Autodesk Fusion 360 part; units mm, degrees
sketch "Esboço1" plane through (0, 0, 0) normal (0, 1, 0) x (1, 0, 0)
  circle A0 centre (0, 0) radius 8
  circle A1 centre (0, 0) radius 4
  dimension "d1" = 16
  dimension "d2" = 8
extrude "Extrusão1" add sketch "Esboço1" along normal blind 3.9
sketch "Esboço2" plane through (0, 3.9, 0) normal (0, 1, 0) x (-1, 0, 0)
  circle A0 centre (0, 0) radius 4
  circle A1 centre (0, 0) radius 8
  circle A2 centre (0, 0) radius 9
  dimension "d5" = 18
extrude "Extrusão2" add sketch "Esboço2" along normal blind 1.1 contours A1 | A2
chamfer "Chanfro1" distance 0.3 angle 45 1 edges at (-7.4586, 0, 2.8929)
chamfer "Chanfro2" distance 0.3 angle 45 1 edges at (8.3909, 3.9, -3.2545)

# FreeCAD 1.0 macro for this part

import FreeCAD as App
import Part
import Sketcher
Q = App.Units.Quantity


def edges_at(feature, points):
    """Names of the edges that pass closest to the given points."""
    edges = feature.Shape.Edges
    near = lambda p: min(range(len(edges)), key=lambda i: edges[i].distToShape(Part.Vertex(*p))[0])
    return sorted({f"Edge{near(p) + 1}" for p in points})

doc = App.newDocument("Part")
params = doc.addObject("Spreadsheet::Sheet", "Params")
for row, (alias, value) in enumerate([
    ("sketch1_diameter", "16 mm"),
    ("sketch1_diameter2", "8 mm"),
    ("pad1_length", "3.9 mm"),
    ("sketch2_diameter", "18 mm"),
    ("sketch2_diameter2", "8 mm"),
    ("pad2_length", "1.1 mm"),
    ("chamfer_size", "0.3 mm"),
    ("chamfer2_size", "0.3 mm"),
], start=1):
    params.set(f"A{row}", alias)
    params.set(f"B{row}", "=" + value)
    params.setAlias(f"B{row}", alias)

body = doc.addObject("PartDesign::Body", "Body")

sketch1 = body.newObject("Sketcher::SketchObject", "Sketch")
sketch1.AttachmentSupport = (doc.getObject("XZ_Plane"), [""])
sketch1.MapMode = "FlatFace"
sketch1.addGeometry(Part.Circle(App.Vector(0, 0, 0), App.Vector(0, 0, 1), 8), False)
sketch1.addGeometry(Part.Circle(App.Vector(0, 0, 0), App.Vector(0, 0, 1), 4), False)
sketch1.addConstraint(Sketcher.Constraint("Coincident", 0, 3, -1, 1))
sketch1.addConstraint(Sketcher.Constraint("Coincident", 1, 3, -1, 1))
sketch1.addConstraint(Sketcher.Constraint("Diameter", 0, Q("16 mm")))
sketch1.addConstraint(Sketcher.Constraint("Diameter", 1, Q("8 mm")))
sketch1.setExpression("Constraints[2]", "Params.sketch1_diameter")
sketch1.setExpression("Constraints[3]", "Params.sketch1_diameter2")
pad1 = body.newObject("PartDesign::Pad", "Pad")
pad1.Profile = sketch1
pad1.setExpression("Length", "Params.pad1_length")
pad1.Reversed = True

sketch2 = body.newObject("Sketcher::SketchObject", "Sketch001")
sketch2.AttachmentSupport = (doc.getObject("XZ_Plane"), [""])
sketch2.MapMode = "FlatFace"
sketch2.AttachmentOffset = App.Placement(App.Vector(0, 0, -3.9), App.Rotation())
sketch2.addGeometry(Part.Circle(App.Vector(0, 0, 0), App.Vector(0, 0, 1), 9), False)
sketch2.addGeometry(Part.Circle(App.Vector(0, 0, 0), App.Vector(0, 0, 1), 4), False)
sketch2.addConstraint(Sketcher.Constraint("Coincident", 0, 3, -1, 1))
sketch2.addConstraint(Sketcher.Constraint("Coincident", 1, 3, -1, 1))
sketch2.addConstraint(Sketcher.Constraint("Diameter", 0, Q("18 mm")))
sketch2.addConstraint(Sketcher.Constraint("Diameter", 1, Q("8 mm")))
sketch2.setExpression("Constraints[2]", "Params.sketch2_diameter")
sketch2.setExpression("Constraints[3]", "Params.sketch2_diameter2")
pad2 = body.newObject("PartDesign::Pad", "Pad001")
pad2.Profile = sketch2
pad2.setExpression("Length", "Params.pad2_length")
pad2.Reversed = True
doc.recompute()

chamfer = body.newObject("PartDesign::Chamfer", "Chamfer")
chamfer.Base = (pad2, edges_at(pad2, [(-7.459, 0, 2.893)]))
chamfer.setExpression("Size", "Params.chamfer_size")
doc.recompute()

chamfer2 = body.newObject("PartDesign::Chamfer", "Chamfer001")
chamfer2.Base = (chamfer, edges_at(chamfer, [(8.391, 3.9, -3.255)]))
chamfer2.setExpression("Size", "Params.chamfer2_size")

doc.recompute()
